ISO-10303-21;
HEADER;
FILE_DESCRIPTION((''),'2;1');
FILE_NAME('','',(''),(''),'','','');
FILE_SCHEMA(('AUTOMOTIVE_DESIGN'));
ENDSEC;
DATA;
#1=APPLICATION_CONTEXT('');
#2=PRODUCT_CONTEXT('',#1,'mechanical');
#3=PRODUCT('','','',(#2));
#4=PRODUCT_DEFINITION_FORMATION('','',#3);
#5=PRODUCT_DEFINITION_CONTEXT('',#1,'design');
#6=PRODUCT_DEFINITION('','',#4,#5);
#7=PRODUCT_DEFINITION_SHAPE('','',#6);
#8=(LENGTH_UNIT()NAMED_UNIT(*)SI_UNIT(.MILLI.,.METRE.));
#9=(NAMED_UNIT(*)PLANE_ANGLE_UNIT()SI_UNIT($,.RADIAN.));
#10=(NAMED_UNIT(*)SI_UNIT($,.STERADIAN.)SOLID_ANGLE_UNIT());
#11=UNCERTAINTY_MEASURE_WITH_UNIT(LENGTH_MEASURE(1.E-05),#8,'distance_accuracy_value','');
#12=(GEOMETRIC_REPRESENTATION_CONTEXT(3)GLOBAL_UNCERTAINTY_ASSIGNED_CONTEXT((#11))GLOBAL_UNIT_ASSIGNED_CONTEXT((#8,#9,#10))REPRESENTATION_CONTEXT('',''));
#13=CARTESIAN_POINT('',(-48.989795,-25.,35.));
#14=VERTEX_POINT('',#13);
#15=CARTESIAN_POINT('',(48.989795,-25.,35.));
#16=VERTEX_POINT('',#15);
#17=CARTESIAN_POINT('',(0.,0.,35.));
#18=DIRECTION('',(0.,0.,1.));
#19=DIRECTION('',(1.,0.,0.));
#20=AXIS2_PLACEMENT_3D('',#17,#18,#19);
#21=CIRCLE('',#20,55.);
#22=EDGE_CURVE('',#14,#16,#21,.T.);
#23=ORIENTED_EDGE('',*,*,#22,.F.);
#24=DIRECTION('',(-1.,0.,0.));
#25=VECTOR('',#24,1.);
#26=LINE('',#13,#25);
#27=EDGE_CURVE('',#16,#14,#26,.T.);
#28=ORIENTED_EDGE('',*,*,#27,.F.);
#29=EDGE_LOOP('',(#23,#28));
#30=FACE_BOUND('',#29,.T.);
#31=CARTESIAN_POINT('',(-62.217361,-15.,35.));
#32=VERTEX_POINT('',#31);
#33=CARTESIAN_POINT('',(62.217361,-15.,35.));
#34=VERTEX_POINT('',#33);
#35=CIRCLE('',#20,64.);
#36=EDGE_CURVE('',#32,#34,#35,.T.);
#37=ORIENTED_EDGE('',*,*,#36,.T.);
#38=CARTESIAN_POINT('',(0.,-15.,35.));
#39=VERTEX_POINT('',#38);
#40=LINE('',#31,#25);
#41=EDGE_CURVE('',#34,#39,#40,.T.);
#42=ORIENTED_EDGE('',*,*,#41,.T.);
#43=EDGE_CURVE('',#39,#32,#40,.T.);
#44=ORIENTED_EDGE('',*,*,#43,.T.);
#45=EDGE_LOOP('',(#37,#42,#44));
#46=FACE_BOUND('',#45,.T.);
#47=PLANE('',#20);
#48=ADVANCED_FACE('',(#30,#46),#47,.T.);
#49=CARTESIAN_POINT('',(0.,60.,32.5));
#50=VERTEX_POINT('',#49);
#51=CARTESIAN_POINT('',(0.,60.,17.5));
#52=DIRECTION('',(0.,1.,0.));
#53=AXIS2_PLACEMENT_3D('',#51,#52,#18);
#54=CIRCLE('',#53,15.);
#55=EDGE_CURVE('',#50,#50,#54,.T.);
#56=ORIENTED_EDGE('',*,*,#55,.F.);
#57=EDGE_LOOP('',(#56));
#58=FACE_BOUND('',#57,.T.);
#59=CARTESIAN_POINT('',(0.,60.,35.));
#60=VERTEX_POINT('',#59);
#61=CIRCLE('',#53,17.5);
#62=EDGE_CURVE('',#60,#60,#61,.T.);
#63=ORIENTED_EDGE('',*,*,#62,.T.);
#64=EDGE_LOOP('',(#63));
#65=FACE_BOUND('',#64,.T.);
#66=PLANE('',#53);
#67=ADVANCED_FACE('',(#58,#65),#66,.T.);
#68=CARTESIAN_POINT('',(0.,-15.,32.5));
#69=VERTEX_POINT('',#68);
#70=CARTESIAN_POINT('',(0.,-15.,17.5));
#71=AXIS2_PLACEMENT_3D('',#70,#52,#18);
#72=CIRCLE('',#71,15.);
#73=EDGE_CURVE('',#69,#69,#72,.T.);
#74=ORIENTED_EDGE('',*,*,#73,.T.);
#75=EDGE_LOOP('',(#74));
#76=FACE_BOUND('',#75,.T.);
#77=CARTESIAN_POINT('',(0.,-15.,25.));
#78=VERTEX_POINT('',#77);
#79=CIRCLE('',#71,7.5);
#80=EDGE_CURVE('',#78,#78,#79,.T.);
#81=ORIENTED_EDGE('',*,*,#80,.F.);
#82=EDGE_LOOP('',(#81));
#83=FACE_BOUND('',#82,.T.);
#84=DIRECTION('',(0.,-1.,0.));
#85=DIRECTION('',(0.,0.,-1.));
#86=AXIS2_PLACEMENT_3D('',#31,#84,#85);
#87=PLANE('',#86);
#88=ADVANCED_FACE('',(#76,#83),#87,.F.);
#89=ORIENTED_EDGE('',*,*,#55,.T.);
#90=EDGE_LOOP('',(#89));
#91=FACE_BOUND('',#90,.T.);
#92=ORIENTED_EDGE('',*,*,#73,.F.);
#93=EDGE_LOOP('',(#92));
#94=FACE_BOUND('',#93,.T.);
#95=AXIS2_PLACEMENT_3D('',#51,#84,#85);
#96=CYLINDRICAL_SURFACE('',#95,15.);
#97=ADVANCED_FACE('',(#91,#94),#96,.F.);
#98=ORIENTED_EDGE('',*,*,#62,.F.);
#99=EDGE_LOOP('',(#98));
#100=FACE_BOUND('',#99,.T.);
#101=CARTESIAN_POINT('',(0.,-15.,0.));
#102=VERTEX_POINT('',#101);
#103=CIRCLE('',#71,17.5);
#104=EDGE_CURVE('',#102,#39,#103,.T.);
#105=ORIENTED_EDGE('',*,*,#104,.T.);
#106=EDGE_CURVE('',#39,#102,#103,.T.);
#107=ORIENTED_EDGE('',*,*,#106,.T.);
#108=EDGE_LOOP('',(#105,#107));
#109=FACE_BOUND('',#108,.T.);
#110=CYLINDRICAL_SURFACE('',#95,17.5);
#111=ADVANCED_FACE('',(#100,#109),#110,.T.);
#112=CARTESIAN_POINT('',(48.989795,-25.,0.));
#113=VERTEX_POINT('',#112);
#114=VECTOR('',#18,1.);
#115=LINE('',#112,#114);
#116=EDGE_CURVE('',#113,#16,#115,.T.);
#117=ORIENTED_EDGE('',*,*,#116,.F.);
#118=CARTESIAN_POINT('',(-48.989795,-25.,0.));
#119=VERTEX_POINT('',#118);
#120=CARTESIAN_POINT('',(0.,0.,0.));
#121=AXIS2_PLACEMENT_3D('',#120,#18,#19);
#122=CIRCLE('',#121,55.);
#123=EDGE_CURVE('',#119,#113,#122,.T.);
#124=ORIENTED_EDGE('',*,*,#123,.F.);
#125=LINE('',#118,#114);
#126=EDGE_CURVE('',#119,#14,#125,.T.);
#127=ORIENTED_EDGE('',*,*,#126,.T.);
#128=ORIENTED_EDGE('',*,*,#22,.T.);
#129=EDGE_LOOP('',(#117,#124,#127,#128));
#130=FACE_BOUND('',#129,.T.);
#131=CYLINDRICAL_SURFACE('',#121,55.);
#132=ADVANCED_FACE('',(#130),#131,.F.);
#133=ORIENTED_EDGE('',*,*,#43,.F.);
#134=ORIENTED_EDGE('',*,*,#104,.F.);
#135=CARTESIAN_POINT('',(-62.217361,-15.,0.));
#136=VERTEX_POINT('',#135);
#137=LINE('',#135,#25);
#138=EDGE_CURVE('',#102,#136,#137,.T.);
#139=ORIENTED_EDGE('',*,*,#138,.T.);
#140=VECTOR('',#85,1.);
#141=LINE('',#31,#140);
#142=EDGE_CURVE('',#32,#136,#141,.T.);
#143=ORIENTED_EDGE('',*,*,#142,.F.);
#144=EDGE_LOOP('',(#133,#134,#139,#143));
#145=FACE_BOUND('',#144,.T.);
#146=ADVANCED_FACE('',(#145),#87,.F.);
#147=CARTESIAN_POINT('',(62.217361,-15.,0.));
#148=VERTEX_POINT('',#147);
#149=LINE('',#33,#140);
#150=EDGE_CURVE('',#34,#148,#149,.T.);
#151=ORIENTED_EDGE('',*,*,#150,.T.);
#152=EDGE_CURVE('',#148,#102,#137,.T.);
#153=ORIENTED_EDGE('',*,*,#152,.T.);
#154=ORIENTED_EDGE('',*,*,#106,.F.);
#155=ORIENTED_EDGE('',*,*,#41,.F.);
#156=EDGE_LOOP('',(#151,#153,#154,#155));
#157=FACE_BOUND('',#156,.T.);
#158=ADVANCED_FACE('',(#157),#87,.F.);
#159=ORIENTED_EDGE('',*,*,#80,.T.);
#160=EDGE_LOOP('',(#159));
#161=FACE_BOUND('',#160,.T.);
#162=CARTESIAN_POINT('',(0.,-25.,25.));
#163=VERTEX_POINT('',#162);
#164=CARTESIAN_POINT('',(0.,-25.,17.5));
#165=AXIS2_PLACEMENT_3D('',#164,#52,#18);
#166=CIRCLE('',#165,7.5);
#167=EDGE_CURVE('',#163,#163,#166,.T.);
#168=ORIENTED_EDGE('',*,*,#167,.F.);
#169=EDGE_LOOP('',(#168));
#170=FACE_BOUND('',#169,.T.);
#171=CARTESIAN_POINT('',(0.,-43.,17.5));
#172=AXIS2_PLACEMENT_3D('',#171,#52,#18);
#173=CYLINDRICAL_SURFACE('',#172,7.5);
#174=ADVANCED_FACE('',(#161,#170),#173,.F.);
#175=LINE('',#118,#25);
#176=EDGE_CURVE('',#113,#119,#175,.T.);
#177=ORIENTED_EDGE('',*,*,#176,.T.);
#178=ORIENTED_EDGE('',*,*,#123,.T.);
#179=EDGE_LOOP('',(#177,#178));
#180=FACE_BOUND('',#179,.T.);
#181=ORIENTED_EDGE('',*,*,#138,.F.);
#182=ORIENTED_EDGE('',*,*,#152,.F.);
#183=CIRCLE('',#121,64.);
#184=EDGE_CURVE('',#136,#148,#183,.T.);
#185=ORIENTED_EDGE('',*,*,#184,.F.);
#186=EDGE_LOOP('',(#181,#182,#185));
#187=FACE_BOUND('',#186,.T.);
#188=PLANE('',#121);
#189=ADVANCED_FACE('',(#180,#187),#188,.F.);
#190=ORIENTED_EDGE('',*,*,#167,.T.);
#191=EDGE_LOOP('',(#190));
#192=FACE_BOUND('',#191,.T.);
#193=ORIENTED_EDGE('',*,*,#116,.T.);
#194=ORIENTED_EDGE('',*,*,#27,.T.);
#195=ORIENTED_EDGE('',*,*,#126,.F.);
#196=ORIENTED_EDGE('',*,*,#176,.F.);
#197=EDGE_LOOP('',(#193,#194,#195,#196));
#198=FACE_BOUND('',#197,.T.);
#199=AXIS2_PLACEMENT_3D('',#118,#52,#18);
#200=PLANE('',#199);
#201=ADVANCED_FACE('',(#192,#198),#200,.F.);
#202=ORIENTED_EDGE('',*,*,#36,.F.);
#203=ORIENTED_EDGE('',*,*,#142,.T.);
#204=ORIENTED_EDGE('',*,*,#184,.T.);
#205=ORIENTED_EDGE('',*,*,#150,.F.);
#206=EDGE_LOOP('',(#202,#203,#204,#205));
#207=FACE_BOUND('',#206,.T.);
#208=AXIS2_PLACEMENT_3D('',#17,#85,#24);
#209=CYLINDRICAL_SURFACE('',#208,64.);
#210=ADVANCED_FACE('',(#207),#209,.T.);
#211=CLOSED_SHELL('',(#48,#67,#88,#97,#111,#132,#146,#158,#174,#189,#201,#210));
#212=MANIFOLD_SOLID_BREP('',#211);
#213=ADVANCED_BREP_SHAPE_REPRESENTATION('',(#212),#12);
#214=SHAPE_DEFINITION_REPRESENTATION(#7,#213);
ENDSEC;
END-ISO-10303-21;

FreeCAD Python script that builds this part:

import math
import FreeCAD as App
import Part
import Sketcher

V = App.Vector
Q = App.Units.Quantity

doc = App.newDocument("Part")
params = doc.addObject("Spreadsheet::Sheet", "Params")
for row, (alias, value) in enumerate([
    ("sketch1_radius", "64 mm"),
    ("pad1_length", "35 mm"),
    ("sketch2_radius", "55 mm"),
    ("pocket1_length", "35 mm"),
    ("sketch3_diameter", "35 mm"),
    ("sketch3_diameter2", "30 mm"),
    ("pad2_length", "75 mm"),
    ("sketch4_diameter", "15 mm"),
    ("pocket2_length", "28 mm"),
], start=1):
    params.set(f"A{row}", alias)
    params.set(f"B{row}", "=" + value)
    params.setAlias(f"B{row}", alias)

body = doc.addObject("PartDesign::Body", "Body")

sketch1 = body.newObject("Sketcher::SketchObject", "Sketch")
sketch1.AttachmentSupport = (doc.getObject("XY_Plane"), [""])
sketch1.MapMode = "FlatFace"
sketch1.addGeometry(Part.LineSegment(V(62, -15, 0), V(-62, -15, 0)), False)
sketch1.addGeometry(Part.ArcOfCircle(Part.Circle(V(0, 0, 0), V(0, 0, 1), 64), math.radians(-166), math.radians(-14)), False)
sketch1.addConstraint(Sketcher.Constraint("Coincident", 0, 1, 1, 2))
sketch1.addConstraint(Sketcher.Constraint("Coincident", 1, 1, 0, 2))
sketch1.addConstraint(Sketcher.Constraint("Horizontal", 0))
sketch1.addConstraint(Sketcher.Constraint("Coincident", 1, 3, -1, 1))
sketch1.addConstraint(Sketcher.Constraint("Radius", 1, Q("64 mm")))
sketch1.addConstraint(Sketcher.Constraint("DistanceY", 0, 1, -1, 1, Q("15 mm")))
sketch1.setExpression("Constraints[4]", "Params.sketch1_radius")
pad1 = body.newObject("PartDesign::Pad", "Pad")
pad1.Profile = sketch1
pad1.setExpression("Length", "Params.pad1_length")

sketch2 = body.newObject("Sketcher::SketchObject", "Sketch001")
sketch2.AttachmentSupport = (doc.getObject("XY_Plane"), [""])
sketch2.MapMode = "FlatFace"
sketch2.AttachmentOffset = App.Placement(V(0, 0, 35), App.Rotation())
sketch2.addGeometry(Part.LineSegment(V(49, -25, 0), V(-49, -25, 0)), False)
sketch2.addGeometry(Part.ArcOfCircle(Part.Circle(V(0, 0, 0), V(0, 0, 1), 55), math.radians(-153), math.radians(-27)), False)
sketch2.addConstraint(Sketcher.Constraint("Coincident", 0, 1, 1, 2))
sketch2.addConstraint(Sketcher.Constraint("Coincident", 1, 1, 0, 2))
sketch2.addConstraint(Sketcher.Constraint("Horizontal", 0))
sketch2.addConstraint(Sketcher.Constraint("Coincident", 1, 3, -1, 1))
sketch2.addConstraint(Sketcher.Constraint("Radius", 1, Q("55 mm")))
sketch2.addConstraint(Sketcher.Constraint("DistanceY", 0, 1, -1, 1, Q("25 mm")))
sketch2.setExpression("Constraints[4]", "Params.sketch2_radius")
pocket1 = body.newObject("PartDesign::Pocket", "Pocket")
pocket1.Profile = sketch2
pocket1.setExpression("Length", "Params.pocket1_length")

sketch3 = body.newObject("Sketcher::SketchObject", "Sketch002")
sketch3.AttachmentSupport = (doc.getObject("XZ_Plane"), [""])
sketch3.MapMode = "FlatFace"
sketch3.AttachmentOffset = App.Placement(V(0, 0, 15), App.Rotation())
sketch3.addGeometry(Part.Circle(V(0, 18, 0), V(0, 0, 1), 18), False)
sketch3.addGeometry(Part.Circle(V(0, 18, 0), V(0, 0, 1), 15), False)
sketch3.addConstraint(Sketcher.Constraint("Coincident", 1, 3, 0, 3))
sketch3.addConstraint(Sketcher.Constraint("PointOnObject", 0, 3, -2))
sketch3.addConstraint(Sketcher.Constraint("Diameter", 0, Q("35 mm")))
sketch3.addConstraint(Sketcher.Constraint("Diameter", 1, Q("30 mm")))
sketch3.addConstraint(Sketcher.Constraint("DistanceY", -1, 1, 0, 3, Q("17.5 mm")))
sketch3.setExpression("Constraints[2]", "Params.sketch3_diameter")
sketch3.setExpression("Constraints[3]", "Params.sketch3_diameter2")
pad2 = body.newObject("PartDesign::Pad", "Pad001")
pad2.Profile = sketch3
pad2.setExpression("Length", "Params.pad2_length")
pad2.Reversed = True

sketch4 = body.newObject("Sketcher::SketchObject", "Sketch003")
sketch4.AttachmentSupport = (doc.getObject("XZ_Plane"), [""])
sketch4.MapMode = "FlatFace"
sketch4.AttachmentOffset = App.Placement(V(0, 0, 15), App.Rotation())
sketch4.addGeometry(Part.Circle(V(0, 18, 0), V(0, 0, 1), 8), False)
sketch4.addConstraint(Sketcher.Constraint("PointOnObject", 0, 3, -2))
sketch4.addConstraint(Sketcher.Constraint("Diameter", 0, Q("15 mm")))
sketch4.addConstraint(Sketcher.Constraint("DistanceY", -1, 1, 0, 3, Q("17.5 mm")))
sketch4.setExpression("Constraints[1]", "Params.sketch4_diameter")
pocket2 = body.newObject("PartDesign::Pocket", "Pocket001")
pocket2.Profile = sketch4
pocket2.setExpression("Length", "Params.pocket2_length")
pocket2.Reversed = True

doc.recompute()
